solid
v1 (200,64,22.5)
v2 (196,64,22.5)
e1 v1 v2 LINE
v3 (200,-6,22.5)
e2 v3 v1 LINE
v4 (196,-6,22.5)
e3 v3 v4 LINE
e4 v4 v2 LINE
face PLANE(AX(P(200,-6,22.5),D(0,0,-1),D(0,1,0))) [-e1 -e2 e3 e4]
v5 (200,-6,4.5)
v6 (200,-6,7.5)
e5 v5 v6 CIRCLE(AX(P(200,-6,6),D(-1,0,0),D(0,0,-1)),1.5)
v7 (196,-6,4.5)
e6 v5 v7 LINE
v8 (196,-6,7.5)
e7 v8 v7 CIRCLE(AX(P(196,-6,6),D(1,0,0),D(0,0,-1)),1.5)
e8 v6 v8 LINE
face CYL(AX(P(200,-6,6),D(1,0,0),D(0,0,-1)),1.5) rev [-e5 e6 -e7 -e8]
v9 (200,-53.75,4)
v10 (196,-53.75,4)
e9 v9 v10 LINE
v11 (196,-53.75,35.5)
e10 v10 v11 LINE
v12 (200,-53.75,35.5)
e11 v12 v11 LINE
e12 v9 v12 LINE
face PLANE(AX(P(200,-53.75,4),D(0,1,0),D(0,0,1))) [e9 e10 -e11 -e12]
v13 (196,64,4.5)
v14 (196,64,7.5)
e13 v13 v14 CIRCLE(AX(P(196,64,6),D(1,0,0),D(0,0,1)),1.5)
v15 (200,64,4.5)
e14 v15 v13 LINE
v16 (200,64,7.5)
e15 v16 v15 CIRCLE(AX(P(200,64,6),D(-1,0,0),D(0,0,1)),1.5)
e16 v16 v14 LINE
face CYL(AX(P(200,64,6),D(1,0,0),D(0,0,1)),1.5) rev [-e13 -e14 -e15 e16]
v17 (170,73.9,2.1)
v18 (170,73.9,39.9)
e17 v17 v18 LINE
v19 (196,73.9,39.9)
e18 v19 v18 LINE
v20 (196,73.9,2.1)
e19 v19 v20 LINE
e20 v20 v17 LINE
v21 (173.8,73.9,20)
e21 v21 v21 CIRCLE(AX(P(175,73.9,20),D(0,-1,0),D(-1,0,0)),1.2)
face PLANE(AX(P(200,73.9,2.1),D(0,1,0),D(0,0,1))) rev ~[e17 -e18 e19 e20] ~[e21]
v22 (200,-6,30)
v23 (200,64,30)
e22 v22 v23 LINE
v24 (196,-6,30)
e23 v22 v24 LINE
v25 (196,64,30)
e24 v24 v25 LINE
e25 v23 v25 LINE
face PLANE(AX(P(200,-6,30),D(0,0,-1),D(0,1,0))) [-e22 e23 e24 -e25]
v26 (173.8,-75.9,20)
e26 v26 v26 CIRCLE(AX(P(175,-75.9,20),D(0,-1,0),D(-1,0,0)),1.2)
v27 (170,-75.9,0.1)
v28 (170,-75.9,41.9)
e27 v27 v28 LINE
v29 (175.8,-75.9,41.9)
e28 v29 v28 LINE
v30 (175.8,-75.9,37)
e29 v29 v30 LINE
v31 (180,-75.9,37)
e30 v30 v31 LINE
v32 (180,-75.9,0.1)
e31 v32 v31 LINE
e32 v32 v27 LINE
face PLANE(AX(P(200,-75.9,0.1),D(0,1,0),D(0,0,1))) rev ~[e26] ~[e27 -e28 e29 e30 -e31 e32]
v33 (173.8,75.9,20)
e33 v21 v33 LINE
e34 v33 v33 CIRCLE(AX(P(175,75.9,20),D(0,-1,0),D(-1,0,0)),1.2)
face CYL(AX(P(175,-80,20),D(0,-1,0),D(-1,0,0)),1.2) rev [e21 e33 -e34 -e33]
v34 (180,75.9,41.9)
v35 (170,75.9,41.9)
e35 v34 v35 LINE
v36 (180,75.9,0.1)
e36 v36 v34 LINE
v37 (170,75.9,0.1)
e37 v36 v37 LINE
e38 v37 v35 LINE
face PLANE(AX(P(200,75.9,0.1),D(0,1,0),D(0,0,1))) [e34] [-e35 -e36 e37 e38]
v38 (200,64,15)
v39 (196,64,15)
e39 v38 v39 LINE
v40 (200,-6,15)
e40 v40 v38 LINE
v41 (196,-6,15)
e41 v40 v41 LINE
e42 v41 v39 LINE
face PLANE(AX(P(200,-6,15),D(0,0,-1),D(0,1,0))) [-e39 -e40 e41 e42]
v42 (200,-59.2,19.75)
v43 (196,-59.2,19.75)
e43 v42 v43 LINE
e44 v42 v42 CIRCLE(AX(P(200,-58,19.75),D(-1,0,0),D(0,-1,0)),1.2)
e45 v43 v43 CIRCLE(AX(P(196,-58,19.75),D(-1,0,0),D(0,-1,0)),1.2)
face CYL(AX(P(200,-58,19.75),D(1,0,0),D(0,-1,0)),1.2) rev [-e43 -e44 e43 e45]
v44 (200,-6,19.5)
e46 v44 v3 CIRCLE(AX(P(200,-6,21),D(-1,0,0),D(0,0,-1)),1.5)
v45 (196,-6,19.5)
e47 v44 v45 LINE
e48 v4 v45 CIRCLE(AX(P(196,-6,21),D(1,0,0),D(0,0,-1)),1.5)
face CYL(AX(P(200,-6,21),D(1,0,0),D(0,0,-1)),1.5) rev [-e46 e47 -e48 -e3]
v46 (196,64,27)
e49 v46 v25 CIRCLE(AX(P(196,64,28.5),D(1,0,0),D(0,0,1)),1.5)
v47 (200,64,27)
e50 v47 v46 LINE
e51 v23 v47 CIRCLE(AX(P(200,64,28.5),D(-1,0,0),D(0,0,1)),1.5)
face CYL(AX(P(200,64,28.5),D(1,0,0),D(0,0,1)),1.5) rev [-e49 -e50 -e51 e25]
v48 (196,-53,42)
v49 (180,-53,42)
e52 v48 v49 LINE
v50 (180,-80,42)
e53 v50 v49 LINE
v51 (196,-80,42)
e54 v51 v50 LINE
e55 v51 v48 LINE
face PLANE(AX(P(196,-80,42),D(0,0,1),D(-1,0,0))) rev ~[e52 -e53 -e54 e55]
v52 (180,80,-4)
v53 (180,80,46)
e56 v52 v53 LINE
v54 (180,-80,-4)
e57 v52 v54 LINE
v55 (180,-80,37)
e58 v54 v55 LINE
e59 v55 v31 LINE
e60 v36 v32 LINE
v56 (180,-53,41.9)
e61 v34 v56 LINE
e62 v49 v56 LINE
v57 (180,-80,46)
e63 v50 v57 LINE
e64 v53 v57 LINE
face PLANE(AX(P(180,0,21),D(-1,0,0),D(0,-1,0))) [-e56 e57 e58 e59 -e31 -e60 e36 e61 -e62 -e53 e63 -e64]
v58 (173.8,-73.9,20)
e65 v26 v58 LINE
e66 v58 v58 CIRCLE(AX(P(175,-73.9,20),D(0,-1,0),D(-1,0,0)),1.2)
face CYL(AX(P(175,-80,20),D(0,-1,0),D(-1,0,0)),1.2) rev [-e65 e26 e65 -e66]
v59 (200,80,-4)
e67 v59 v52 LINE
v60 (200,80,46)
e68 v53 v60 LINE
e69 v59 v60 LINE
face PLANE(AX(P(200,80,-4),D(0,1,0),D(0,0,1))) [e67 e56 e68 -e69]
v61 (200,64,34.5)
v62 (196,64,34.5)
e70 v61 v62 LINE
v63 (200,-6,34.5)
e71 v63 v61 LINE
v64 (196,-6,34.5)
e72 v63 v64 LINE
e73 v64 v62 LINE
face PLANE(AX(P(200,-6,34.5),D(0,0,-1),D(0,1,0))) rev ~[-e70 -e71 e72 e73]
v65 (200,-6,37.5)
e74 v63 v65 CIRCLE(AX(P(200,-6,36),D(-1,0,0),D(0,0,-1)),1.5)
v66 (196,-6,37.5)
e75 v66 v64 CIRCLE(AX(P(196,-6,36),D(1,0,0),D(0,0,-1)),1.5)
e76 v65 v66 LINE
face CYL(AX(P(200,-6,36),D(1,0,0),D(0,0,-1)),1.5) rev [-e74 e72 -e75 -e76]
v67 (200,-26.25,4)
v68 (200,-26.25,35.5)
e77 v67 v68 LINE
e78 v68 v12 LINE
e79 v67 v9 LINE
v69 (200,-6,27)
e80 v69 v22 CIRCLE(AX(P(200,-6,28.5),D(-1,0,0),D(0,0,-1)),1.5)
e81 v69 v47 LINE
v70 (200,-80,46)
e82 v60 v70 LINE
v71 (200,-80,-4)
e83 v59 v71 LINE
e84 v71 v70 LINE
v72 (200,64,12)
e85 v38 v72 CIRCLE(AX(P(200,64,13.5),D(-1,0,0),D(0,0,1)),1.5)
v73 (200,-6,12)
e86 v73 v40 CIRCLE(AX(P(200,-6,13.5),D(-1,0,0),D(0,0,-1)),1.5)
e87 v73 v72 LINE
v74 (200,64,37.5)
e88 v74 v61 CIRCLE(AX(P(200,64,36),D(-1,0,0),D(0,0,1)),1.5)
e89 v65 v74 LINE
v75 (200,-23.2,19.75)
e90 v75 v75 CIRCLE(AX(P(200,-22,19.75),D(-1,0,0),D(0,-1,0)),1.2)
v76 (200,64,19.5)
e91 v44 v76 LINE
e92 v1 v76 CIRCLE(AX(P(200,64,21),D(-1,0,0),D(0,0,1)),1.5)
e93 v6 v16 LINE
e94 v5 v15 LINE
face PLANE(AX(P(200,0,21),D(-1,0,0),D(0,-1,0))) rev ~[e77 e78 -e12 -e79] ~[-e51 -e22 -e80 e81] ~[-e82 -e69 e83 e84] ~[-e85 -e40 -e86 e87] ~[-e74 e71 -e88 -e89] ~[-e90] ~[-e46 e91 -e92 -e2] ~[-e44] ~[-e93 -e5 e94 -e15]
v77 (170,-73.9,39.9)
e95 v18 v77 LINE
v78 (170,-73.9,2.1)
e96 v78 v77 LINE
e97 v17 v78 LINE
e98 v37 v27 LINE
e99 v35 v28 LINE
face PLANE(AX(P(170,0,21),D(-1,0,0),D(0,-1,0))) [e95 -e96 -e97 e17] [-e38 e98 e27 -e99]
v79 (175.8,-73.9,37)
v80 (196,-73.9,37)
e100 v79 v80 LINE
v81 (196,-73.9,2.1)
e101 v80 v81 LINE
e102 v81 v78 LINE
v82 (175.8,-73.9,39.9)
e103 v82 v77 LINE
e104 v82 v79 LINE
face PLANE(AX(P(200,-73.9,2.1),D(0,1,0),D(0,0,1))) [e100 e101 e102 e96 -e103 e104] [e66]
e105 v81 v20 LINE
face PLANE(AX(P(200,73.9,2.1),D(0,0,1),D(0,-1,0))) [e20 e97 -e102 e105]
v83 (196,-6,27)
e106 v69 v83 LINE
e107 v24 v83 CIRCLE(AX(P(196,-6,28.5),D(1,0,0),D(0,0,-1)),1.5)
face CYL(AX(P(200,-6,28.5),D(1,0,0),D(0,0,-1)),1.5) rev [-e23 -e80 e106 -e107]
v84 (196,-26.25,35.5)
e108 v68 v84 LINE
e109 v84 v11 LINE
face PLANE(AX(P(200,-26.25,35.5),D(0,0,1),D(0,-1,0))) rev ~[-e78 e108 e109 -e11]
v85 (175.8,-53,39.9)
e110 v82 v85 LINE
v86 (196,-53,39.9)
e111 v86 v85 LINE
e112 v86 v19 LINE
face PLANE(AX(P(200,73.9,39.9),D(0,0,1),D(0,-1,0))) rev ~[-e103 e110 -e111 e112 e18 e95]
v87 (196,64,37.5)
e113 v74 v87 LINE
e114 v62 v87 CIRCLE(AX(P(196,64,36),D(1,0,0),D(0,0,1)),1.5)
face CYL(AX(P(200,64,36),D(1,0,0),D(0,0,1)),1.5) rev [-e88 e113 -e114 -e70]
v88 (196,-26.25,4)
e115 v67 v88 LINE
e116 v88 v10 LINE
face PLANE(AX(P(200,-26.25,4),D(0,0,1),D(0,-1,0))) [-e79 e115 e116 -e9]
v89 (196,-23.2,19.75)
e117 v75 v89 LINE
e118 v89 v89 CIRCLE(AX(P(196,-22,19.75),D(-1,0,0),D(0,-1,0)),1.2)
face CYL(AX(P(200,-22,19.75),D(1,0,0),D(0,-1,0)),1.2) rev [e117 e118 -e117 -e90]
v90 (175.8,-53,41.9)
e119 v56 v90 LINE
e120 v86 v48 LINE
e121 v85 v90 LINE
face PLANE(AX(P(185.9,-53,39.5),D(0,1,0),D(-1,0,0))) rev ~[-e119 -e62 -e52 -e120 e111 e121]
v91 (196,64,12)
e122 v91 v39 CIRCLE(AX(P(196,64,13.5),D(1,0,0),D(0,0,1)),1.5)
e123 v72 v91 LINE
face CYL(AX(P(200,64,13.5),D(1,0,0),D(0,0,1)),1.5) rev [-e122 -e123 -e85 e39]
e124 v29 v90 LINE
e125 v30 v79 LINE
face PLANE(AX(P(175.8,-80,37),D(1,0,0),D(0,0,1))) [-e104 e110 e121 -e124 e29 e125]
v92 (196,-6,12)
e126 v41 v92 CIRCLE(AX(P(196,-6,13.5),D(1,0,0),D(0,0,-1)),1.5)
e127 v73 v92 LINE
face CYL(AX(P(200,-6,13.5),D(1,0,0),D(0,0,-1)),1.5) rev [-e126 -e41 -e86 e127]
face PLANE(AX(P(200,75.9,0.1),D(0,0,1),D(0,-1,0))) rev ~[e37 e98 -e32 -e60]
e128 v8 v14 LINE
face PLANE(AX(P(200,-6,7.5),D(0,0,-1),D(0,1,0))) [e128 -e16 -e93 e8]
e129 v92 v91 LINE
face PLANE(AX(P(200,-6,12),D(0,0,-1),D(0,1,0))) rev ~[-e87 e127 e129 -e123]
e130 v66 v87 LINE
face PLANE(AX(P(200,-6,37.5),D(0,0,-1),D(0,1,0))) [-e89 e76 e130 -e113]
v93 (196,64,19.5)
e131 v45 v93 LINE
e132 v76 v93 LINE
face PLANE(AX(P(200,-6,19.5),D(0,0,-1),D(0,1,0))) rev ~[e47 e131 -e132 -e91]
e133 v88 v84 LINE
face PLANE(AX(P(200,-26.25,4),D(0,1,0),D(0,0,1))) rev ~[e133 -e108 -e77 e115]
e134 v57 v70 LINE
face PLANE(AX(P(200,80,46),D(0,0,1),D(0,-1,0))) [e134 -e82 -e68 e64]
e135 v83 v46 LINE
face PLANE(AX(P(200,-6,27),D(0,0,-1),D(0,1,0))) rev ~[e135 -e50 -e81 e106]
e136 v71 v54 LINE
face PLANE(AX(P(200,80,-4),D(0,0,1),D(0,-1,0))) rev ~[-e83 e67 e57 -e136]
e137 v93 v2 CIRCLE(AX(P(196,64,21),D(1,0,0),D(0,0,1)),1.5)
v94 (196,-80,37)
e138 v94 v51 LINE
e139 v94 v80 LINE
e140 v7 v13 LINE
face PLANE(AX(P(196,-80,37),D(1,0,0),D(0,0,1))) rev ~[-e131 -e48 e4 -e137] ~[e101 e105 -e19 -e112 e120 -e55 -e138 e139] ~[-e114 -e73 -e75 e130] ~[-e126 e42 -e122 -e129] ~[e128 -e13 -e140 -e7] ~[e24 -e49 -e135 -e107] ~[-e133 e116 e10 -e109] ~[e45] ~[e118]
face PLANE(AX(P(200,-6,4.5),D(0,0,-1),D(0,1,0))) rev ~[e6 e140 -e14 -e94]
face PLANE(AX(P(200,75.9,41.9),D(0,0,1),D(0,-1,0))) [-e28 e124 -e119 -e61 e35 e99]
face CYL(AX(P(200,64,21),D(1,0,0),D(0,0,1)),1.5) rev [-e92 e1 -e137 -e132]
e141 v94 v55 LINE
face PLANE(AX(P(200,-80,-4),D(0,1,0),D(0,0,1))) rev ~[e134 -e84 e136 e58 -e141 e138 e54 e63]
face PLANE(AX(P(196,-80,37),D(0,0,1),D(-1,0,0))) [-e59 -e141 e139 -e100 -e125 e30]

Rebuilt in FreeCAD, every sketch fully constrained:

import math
import FreeCAD as App
import Part
import Sketcher
Q = App.Units.Quantity


def add_polygon(sketch, points):
    """Adds a closed chain of lines whose ends are joined by coincident constraints."""
    first, n = sketch.GeometryCount, len(points)
    for a, b in zip(points, points[1:] + points[:1]):
        sketch.addGeometry(Part.LineSegment(App.Vector(*a, 0), App.Vector(*b, 0)), False)
    for i in range(n):
        sketch.addConstraint(Sketcher.Constraint("Coincident", first + i, 2, first + (i + 1) % n, 1))

doc = App.newDocument("Part")
body = doc.addObject("PartDesign::Body", "Body")

# Sketch on YZ plane
sketch1 = body.newObject("Sketcher::SketchObject", "Sketch")
sketch1.AttachmentSupport = (doc.getObject("YZ_Plane"), [""])
sketch1.MapMode = "FlatFace"
add_polygon(sketch1, [(-80, 50), (-80, 0), (80, 0), (80, 50)])  # lines 0-3
sketch1.addGeometry(Part.Circle(App.Vector(22, 23.8, 0), App.Vector(0, 0, 1), 1.2), False)  # 4
add_polygon(sketch1, [(53.8, 8), (26.2, 8), (26.2, 39.5), (53.8, 39.5)])  # lines 5-8
sketch1.addGeometry(Part.Circle(App.Vector(58, 23.8, 0), App.Vector(0, 0, 1), 1.2), False)  # 9
sketch1.addConstraint(Sketcher.Constraint("Vertical", 0))
sketch1.addConstraint(Sketcher.Constraint("Horizontal", 1))
sketch1.addConstraint(Sketcher.Constraint("Vertical", 2))
sketch1.addConstraint(Sketcher.Constraint("Horizontal", 3))
sketch1.addConstraint(Sketcher.Constraint("Horizontal", 5))
sketch1.addConstraint(Sketcher.Constraint("Vertical", 6))
sketch1.addConstraint(Sketcher.Constraint("Horizontal", 7))
sketch1.addConstraint(Sketcher.Constraint("Vertical", 8))
sketch1.addConstraint(Sketcher.Constraint("Equal", 4, 9))
sketch1.addConstraint(Sketcher.Constraint("Symmetric", 0, 2, 1, 2, -1, 1))
sketch1.addConstraint(Sketcher.Constraint("Horizontal", 4, 3, 9, 3))
sketch1.addConstraint(Sketcher.Constraint("Diameter", 4, Q("2.4 mm")))
sketch1.addConstraint(Sketcher.Constraint("DistanceX", 1, 1, 1, 2, Q("160 mm")))
sketch1.addConstraint(Sketcher.Constraint("DistanceY", 0, 2, 0, 1, Q("50 mm")))
sketch1.addConstraint(Sketcher.Constraint("DistanceX", 5, 2, 5, 1, Q("27.5 mm")))
sketch1.addConstraint(Sketcher.Constraint("DistanceY", 6, 1, 6, 2, Q("31.5 mm")))
sketch1.addConstraint(Sketcher.Constraint("DistanceX", -1, 1, 4, 3, Q("22 mm")))
sketch1.addConstraint(Sketcher.Constraint("DistanceX", -1, 1, 9, 3, Q("58 mm")))
sketch1.addConstraint(Sketcher.Constraint("DistanceY", -1, 1, 5, 2, Q("8 mm")))
sketch1.addConstraint(Sketcher.Constraint("DistanceY", -1, 1, 4, 3, Q("23.75 mm")))
sketch1.addConstraint(Sketcher.Constraint("DistanceX", -1, 1, 5, 2, Q("26.25 mm")))
pad1 = body.newObject("PartDesign::Pad", "Pad")
pad1.Profile = sketch1
pad1.Length = 4

# Sketch on YZ plane
sketch2 = body.newObject("Sketcher::SketchObject", "Sketch001")
sketch2.AttachmentSupport = (doc.getObject("YZ_Plane"), [""])
sketch2.MapMode = "FlatFace"
add_polygon(sketch2, [(-76, 46), (-76, 4), (76, 4), (76, 46)])  # lines 0-3
add_polygon(sketch2, [(74, 6), (-74, 6), (-74, 44), (74, 44)])  # lines 4-7
sketch2.addConstraint(Sketcher.Constraint("Vertical", 0))
sketch2.addConstraint(Sketcher.Constraint("Horizontal", 1))
sketch2.addConstraint(Sketcher.Constraint("Vertical", 2))
sketch2.addConstraint(Sketcher.Constraint("Horizontal", 3))
sketch2.addConstraint(Sketcher.Constraint("Horizontal", 4))
sketch2.addConstraint(Sketcher.Constraint("Vertical", 5))
sketch2.addConstraint(Sketcher.Constraint("Horizontal", 6))
sketch2.addConstraint(Sketcher.Constraint("Vertical", 7))
sketch2.addConstraint(Sketcher.Constraint("DistanceX", 1, 1, 1, 2, Q("151.8 mm")))
sketch2.addConstraint(Sketcher.Constraint("DistanceX", 4, 2, 4, 1, Q("147.8 mm")))
sketch2.addConstraint(Sketcher.Constraint("DistanceY", 0, 2, 0, 1, Q("41.8 mm")))
sketch2.addConstraint(Sketcher.Constraint("DistanceY", 5, 1, 5, 2, Q("37.8 mm")))
sketch2.addConstraint(Sketcher.Constraint("DistanceX", 0, 2, 4, 2, Q("2 mm")))
sketch2.addConstraint(Sketcher.Constraint("DistanceY", 0, 2, 4, 2, Q("2 mm")))
sketch2.addConstraint(Sketcher.Constraint("DistanceX", 0, 2, -1, 1, Q("75.9 mm")))
sketch2.addConstraint(Sketcher.Constraint("DistanceY", -1, 1, 0, 2, Q("4.1 mm")))
pad2 = body.newObject("PartDesign::Pad", "Pad001")
pad2.Profile = sketch2
pad2.Length = 30

# Sketch on YZ plane
sketch3 = body.newObject("Sketcher::SketchObject", "Sketch002")
sketch3.AttachmentSupport = (doc.getObject("YZ_Plane"), [""])
sketch3.MapMode = "FlatFace"
add_polygon(sketch3, [(-80, 50), (-80, 0), (80, 0), (80, 50)])  # lines 0-3
add_polygon(sketch3, [(76, 4), (-76, 4), (-76, 46), (76, 46)])  # lines 4-7
sketch3.addConstraint(Sketcher.Constraint("Vertical", 0))
sketch3.addConstraint(Sketcher.Constraint("Horizontal", 1))
sketch3.addConstraint(Sketcher.Constraint("Vertical", 2))
sketch3.addConstraint(Sketcher.Constraint("Horizontal", 3))
sketch3.addConstraint(Sketcher.Constraint("Horizontal", 4))
sketch3.addConstraint(Sketcher.Constraint("Vertical", 5))
sketch3.addConstraint(Sketcher.Constraint("Horizontal", 6))
sketch3.addConstraint(Sketcher.Constraint("Vertical", 7))
sketch3.addConstraint(Sketcher.Constraint("Symmetric", 0, 2, 1, 2, -1, 1))
sketch3.addConstraint(Sketcher.Constraint("DistanceX", 1, 1, 1, 2, Q("160 mm")))
sketch3.addConstraint(Sketcher.Constraint("DistanceY", 0, 2, 0, 1, Q("50 mm")))
sketch3.addConstraint(Sketcher.Constraint("DistanceX", 4, 2, 4, 1, Q("151.8 mm")))
sketch3.addConstraint(Sketcher.Constraint("DistanceY", 5, 1, 5, 2, Q("41.8 mm")))
sketch3.addConstraint(Sketcher.Constraint("DistanceX", 4, 2, -1, 1, Q("75.9 mm")))
sketch3.addConstraint(Sketcher.Constraint("DistanceY", -1, 1, 4, 2, Q("4.1 mm")))
pad3 = body.newObject("PartDesign::Pad", "Pad002")
pad3.Profile = sketch3
pad3.Length = 20

# Sketch on XZ plane
sketch4 = body.newObject("Sketcher::SketchObject", "Sketch003")
sketch4.AttachmentSupport = (doc.getObject("XZ_Plane"), [""])
sketch4.MapMode = "FlatFace"
sketch4.AttachmentOffset = App.Placement(App.Vector(0, 0, -80), App.Rotation())
add_polygon(sketch4, [(4, 46), (4, 41), (24, 41), (24, 46)])  # lines 0-3
sketch4.addConstraint(Sketcher.Constraint("Vertical", 0))
sketch4.addConstraint(Sketcher.Constraint("Horizontal", 1))
sketch4.addConstraint(Sketcher.Constraint("Vertical", 2))
sketch4.addConstraint(Sketcher.Constraint("Horizontal", 3))
sketch4.addConstraint(Sketcher.Constraint("DistanceY", 0, 2, 0, 1, Q("5 mm")))
sketch4.addConstraint(Sketcher.Constraint("DistanceX", 1, 1, 1, 2, Q("20.2 mm")))
sketch4.addConstraint(Sketcher.Constraint("DistanceX", -1, 1, 0, 2, Q("4 mm")))
sketch4.addConstraint(Sketcher.Constraint("DistanceY", -1, 1, 0, 2, Q("41 mm")))
pocket1 = body.newObject("PartDesign::Pocket", "Pocket")
pocket1.Profile = sketch4
pocket1.Length = 27
pocket1.Reversed = True

# Sketch on XZ plane
sketch5 = body.newObject("Sketcher::SketchObject", "Sketch004")
sketch5.AttachmentSupport = (doc.getObject("XZ_Plane"), [""])
sketch5.MapMode = "FlatFace"
sketch5.AttachmentOffset = App.Placement(App.Vector(0, 0, -80), App.Rotation())
sketch5.addGeometry(Part.Circle(App.Vector(25, 24, 0), App.Vector(0, 0, 1), 1.2), False)
sketch5.addConstraint(Sketcher.Constraint("Diameter", 0, Q("2.4 mm")))
sketch5.addConstraint(Sketcher.Constraint("DistanceX", -1, 1, 0, 3, Q("25 mm")))
sketch5.addConstraint(Sketcher.Constraint("DistanceY", -1, 1, 0, 3, Q("24 mm")))
pocket2 = body.newObject("PartDesign::Pocket", "Pocket001")
pocket2.Profile = sketch5
pocket2.Type = "ThroughAll"
pocket2.Reversed = True

# Sketch on YZ plane
sketch6 = body.newObject("Sketcher::SketchObject", "Sketch005")
sketch6.AttachmentSupport = (doc.getObject("YZ_Plane"), [""])
sketch6.MapMode = "FlatFace"
sketch6.addGeometry(Part.LineSegment(App.Vector(6, 11.5, 0), App.Vector(-64, 11.5, 0)), False)
sketch6.addGeometry(Part.ArcOfCircle(Part.Circle(App.Vector(-64, 10, 0), App.Vector(0, 0, 1), 1.5), math.radians(90), math.radians(270)), False)
sketch6.addGeometry(Part.LineSegment(App.Vector(-64, 8.5, 0), App.Vector(6, 8.5, 0)), False)
sketch6.addGeometry(Part.ArcOfCircle(Part.Circle(App.Vector(6, 10, 0), App.Vector(0, 0, 1), 1.5), math.radians(-90), math.radians(90)), False)
sketch6.addConstraint(Sketcher.Constraint("Tangent", 0, 2, 1, 1))
sketch6.addConstraint(Sketcher.Constraint("Tangent", 1, 2, 2, 1))
sketch6.addConstraint(Sketcher.Constraint("Tangent", 2, 2, 3, 1))
sketch6.addConstraint(Sketcher.Constraint("Tangent", 3, 2, 0, 1))
sketch6.addConstraint(Sketcher.Constraint("Horizontal", 0))
sketch6.addConstraint(Sketcher.Constraint("Horizontal", 2))
sketch6.addConstraint(Sketcher.Constraint("Radius", 1, Q("1.5 mm")))
sketch6.addConstraint(Sketcher.Constraint("DistanceX", 0, 2, 0, 1, Q("70 mm")))
sketch6.addConstraint(Sketcher.Constraint("DistanceX", 1, 3, -1, 1, Q("64 mm")))
sketch6.addConstraint(Sketcher.Constraint("DistanceY", -1, 1, 1, 3, Q("10 mm")))
pocket3 = body.newObject("PartDesign::Pocket", "Pocket002")
pocket3.Profile = sketch6
pocket3.Type = "ThroughAll"
pocket3.Reversed = True
doc.recompute()

linearpattern = body.newObject("PartDesign::LinearPattern", "LinearPattern")
linearpattern.Originals = [pocket3]
linearpattern.Direction = (doc.getObject("Z_Axis"), [""])
linearpattern.Mode = "offset"
linearpattern.Offset = 7.5
linearpattern.Occurrences = 5
body.Tip = linearpattern
body2 = doc.addObject("PartDesign::Body", "Body001")
doc.recompute()

body.Placement = App.Placement(App.Vector(200, 0, -4), App.Rotation(App.Vector(0, 0, 1), 180))
boolean = body2.newObject("PartDesign::Boolean", "Boolean")
boolean.Type = "Fuse"
boolean.addObjects([body])

doc.recompute()
